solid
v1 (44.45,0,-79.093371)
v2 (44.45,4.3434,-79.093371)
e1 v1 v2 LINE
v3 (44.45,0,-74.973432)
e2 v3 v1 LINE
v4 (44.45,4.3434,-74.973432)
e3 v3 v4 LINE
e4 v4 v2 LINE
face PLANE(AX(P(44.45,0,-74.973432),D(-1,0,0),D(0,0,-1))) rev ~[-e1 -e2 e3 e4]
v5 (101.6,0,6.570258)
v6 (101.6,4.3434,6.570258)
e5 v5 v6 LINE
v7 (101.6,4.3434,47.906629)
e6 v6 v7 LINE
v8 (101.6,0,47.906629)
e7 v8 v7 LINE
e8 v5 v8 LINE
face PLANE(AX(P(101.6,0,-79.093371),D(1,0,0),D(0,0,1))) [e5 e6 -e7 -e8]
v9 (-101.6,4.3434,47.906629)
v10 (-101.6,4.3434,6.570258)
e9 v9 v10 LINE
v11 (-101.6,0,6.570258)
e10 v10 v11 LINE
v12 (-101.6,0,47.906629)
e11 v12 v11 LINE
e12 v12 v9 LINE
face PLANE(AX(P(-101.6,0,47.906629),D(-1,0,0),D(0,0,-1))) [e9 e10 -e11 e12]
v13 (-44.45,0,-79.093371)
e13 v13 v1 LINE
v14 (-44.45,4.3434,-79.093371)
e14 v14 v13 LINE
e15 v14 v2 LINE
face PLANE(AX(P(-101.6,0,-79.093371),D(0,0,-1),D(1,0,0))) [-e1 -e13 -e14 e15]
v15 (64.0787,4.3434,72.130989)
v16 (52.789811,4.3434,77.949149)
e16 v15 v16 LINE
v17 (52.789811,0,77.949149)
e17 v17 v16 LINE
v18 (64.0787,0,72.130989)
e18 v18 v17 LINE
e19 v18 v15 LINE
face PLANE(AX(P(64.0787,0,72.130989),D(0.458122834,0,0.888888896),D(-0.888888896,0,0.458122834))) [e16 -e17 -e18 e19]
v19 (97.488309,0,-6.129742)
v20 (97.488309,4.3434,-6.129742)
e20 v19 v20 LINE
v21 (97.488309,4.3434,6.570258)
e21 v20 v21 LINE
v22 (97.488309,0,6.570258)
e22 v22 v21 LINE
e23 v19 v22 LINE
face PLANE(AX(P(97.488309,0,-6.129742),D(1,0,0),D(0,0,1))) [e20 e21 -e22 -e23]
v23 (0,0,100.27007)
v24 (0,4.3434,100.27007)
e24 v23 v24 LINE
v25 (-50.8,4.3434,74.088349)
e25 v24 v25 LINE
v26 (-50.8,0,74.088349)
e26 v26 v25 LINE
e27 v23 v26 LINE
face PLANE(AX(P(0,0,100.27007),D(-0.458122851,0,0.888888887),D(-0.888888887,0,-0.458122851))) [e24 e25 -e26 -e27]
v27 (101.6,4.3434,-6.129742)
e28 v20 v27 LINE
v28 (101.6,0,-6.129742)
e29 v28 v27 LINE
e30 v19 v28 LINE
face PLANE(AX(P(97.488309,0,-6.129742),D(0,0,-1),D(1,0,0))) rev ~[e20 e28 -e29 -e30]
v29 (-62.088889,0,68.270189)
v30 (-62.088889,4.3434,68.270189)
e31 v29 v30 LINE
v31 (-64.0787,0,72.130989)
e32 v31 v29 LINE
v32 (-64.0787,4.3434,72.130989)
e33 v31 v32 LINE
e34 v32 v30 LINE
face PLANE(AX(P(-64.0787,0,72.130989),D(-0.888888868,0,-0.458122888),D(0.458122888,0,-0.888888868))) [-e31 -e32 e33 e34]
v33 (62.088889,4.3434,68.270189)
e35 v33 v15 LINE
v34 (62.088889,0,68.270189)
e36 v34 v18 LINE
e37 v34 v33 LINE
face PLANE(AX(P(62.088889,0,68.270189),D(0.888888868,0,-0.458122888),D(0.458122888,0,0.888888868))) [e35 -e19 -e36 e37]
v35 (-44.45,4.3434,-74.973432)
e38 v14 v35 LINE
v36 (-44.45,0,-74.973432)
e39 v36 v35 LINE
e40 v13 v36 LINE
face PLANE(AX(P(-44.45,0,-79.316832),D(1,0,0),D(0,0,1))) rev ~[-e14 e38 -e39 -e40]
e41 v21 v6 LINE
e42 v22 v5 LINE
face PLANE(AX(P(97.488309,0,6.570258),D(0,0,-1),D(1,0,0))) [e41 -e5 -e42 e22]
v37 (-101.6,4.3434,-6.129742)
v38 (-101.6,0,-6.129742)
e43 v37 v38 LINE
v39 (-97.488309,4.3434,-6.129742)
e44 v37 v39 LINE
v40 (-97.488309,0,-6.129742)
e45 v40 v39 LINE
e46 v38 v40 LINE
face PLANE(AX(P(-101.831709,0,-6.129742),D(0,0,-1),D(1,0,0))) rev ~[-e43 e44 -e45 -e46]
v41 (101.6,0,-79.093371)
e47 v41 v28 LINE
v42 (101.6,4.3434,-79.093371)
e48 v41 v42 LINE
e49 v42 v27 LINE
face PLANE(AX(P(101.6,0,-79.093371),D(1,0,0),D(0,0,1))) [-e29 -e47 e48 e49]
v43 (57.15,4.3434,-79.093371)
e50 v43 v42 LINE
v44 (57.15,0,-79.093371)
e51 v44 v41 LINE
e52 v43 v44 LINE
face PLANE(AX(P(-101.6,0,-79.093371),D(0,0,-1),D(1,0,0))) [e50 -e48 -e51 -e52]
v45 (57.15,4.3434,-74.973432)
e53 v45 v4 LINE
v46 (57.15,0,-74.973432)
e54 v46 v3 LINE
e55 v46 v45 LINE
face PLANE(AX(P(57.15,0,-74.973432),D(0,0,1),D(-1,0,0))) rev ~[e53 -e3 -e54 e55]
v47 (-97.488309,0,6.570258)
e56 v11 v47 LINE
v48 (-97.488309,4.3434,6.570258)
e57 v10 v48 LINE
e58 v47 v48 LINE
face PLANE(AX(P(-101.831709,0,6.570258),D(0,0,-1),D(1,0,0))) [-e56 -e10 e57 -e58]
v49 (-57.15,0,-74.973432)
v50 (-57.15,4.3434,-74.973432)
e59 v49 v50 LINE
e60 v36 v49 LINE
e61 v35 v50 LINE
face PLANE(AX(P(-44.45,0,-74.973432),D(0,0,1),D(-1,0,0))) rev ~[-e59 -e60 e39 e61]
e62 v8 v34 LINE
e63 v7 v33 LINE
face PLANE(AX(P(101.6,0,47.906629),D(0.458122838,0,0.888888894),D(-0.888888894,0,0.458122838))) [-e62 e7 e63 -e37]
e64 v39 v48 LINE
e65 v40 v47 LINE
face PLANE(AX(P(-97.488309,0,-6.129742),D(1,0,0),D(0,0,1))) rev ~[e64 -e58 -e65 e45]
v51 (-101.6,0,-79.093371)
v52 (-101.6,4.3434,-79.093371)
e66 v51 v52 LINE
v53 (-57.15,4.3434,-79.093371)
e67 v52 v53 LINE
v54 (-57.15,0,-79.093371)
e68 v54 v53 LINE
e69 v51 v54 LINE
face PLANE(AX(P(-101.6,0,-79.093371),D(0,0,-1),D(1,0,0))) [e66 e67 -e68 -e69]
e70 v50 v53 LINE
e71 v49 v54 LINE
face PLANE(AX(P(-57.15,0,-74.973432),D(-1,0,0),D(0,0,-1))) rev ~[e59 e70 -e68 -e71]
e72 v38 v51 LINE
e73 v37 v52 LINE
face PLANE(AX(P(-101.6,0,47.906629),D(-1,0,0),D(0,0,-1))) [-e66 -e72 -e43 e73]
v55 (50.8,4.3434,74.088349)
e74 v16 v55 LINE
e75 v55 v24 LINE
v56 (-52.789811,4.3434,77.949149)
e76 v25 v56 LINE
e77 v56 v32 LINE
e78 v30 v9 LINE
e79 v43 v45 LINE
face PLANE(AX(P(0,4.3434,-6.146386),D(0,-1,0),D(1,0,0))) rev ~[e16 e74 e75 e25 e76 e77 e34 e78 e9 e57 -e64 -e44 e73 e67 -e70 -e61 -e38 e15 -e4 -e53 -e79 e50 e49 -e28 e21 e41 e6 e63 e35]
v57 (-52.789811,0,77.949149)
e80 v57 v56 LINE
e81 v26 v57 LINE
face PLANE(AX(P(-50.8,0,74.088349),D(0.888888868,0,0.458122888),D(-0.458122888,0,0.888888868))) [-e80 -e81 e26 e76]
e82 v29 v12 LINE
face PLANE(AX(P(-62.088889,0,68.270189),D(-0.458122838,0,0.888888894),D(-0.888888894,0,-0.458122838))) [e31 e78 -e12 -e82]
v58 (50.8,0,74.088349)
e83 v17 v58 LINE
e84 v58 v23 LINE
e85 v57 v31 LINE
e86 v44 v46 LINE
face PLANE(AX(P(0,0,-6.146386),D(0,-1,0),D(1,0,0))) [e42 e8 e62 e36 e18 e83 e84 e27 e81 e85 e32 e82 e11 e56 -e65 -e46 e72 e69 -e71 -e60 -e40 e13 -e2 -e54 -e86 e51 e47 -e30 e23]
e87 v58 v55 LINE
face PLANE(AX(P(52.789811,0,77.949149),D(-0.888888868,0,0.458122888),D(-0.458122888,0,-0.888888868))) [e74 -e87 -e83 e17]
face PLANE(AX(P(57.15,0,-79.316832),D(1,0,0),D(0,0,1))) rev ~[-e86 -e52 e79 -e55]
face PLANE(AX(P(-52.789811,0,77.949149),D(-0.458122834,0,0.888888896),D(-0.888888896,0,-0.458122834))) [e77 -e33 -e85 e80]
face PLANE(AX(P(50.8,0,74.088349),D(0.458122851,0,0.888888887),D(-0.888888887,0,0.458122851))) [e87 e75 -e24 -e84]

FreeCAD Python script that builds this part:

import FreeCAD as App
import Part
import Sketcher

V = App.Vector
Q = App.Units.Quantity


def add_polygon(sketch, points):
    """Adds a closed chain of lines whose ends are joined by coincident constraints."""
    first, n = sketch.GeometryCount, len(points)
    for a, b in zip(points, points[1:] + points[:1]):
        sketch.addGeometry(Part.LineSegment(App.Vector(*a, 0), App.Vector(*b, 0)), False)
    for i in range(n):
        sketch.addConstraint(Sketcher.Constraint("Coincident", first + i, 2, first + (i + 1) % n, 1))

doc = App.newDocument("Part")
params = doc.addObject("Spreadsheet::Sheet", "Params")
for row, (alias, value) in enumerate([
    ("sketch1_width", "8 in"),
    ("sketch1_height", "5 in"),
    ("sketch1_length", "0.5 in"),
    ("sketch1_length2", "2.25 in"),
    ("sketch1_length3", "0.171 in"),
    ("pad1_length", "0.171 in"),
    ("sketch2_height", "0.5 in"),
    ("sketch2_width", "0.171 in"),
    ("sketch3_width", "0.5 in"),
    ("sketch3_height", "0.171 in"),
], start=1):
    params.set(f"A{row}", alias)
    params.set(f"B{row}", "=" + value)
    params.setAlias(f"B{row}", alias)

body = doc.addObject("PartDesign::Body", "Body")

# Sketch on XZ plane
sketch1 = doc.addObject("Sketcher::SketchObject", "Sketch")
body.addObject(sketch1)
sketch1.AttachmentSupport = (doc.XZ_Plane, [""])
sketch1.MapMode = "FlatFace"
add_polygon(sketch1, [(50.8, 74.1), (0, 100.3), (-50.8, 74.1), (-52.8, 77.9), (-64.1, 72.1), (-62.1, 68.3), (-101.6, 47.9), (-101.6, -79.1), (101.6, -79.1), (101.6, 47.9), (62.1, 68.3), (64.1, 72.1), (52.8, 77.9)])  # lines 0-12
sketch1.addConstraint(Sketcher.Constraint("Vertical", 6))
sketch1.addConstraint(Sketcher.Constraint("Horizontal", 7))
sketch1.addConstraint(Sketcher.Constraint("Vertical", 8))
sketch1.addConstraint(Sketcher.Constraint("Symmetric", 5, 2, 8, 2, -2))
sketch1.addConstraint(Sketcher.Constraint("Symmetric", 4, 2, 9, 2, -2))
sketch1.addConstraint(Sketcher.Constraint("Symmetric", 3, 2, 10, 2, -2))
sketch1.addConstraint(Sketcher.Constraint("Symmetric", 2, 2, 11, 2, -2))
sketch1.addConstraint(Sketcher.Constraint("Symmetric", 1, 2, 12, 2, -2))
sketch1.addConstraint(Sketcher.Constraint("PointOnObject", 0, 2, -2))
sketch1.addConstraint(Sketcher.Constraint("Perpendicular", 1, 2))
sketch1.addConstraint(Sketcher.Constraint("Perpendicular", 2, 3))
sketch1.addConstraint(Sketcher.Constraint("Perpendicular", 3, 4))
sketch1.addConstraint(Sketcher.Constraint("Perpendicular", 4, 5))
sketch1.addConstraint(Sketcher.Constraint("Equal", 2, 4))
sketch1.addConstraint(Sketcher.Constraint("DistanceX", 7, 1, 7, 2, Q("8 in")))
sketch1.addConstraint(Sketcher.Constraint("DistanceY", 6, 2, 6, 1, Q("5 in")))
sketch1.addConstraint(Sketcher.Constraint("DistanceX", 1, 2, -1, 1, Q("2 in")))
sketch1.addConstraint(Sketcher.Constraint("Distance", 3, Q("0.5 in")))
sketch1.addConstraint(Sketcher.Constraint("Distance", 0, Q("2.25 in")))
sketch1.addConstraint(Sketcher.Constraint("Distance", 2, Q("0.171 in")))
sketch1.addConstraint(Sketcher.Constraint("DistanceY", -1, 1, 0, 2, 100.27007))
sketch1.setExpression("Constraints[27]", "Params.sketch1_width")
sketch1.setExpression("Constraints[28]", "Params.sketch1_height")
sketch1.setExpression("Constraints[30]", "Params.sketch1_length")
sketch1.setExpression("Constraints[31]", "Params.sketch1_length2")
sketch1.setExpression("Constraints[32]", "Params.sketch1_length3")
pad1 = doc.addObject("PartDesign::Pad", "Pad")
body.addObject(pad1)
pad1.Profile = sketch1
pad1.setExpression("Length", "Params.pad1_length")
pad1.Reversed = True

# Sketch on XZ plane
sketch2 = doc.addObject("Sketcher::SketchObject", "Sketch001")
body.addObject(sketch2)
sketch2.AttachmentSupport = (doc.XZ_Plane, [""])
sketch2.MapMode = "FlatFace"
add_polygon(sketch2, [(-101.8, 6.6), (-101.8, -6.1), (-97.5, -6.1), (-97.5, 6.6)])  # lines 0-3
add_polygon(sketch2, [(97.5, 6.6), (97.5, -6.1), (101.8, -6.1), (101.8, 6.6)])  # lines 4-7
sketch2.addConstraint(Sketcher.Constraint("Vertical", 0))
sketch2.addConstraint(Sketcher.Constraint("Horizontal", 1))
sketch2.addConstraint(Sketcher.Constraint("Vertical", 2))
sketch2.addConstraint(Sketcher.Constraint("Horizontal", 3))
sketch2.addConstraint(Sketcher.Constraint("Vertical", 4))
sketch2.addConstraint(Sketcher.Constraint("Horizontal", 5))
sketch2.addConstraint(Sketcher.Constraint("Vertical", 6))
sketch2.addConstraint(Sketcher.Constraint("Horizontal", 7))
sketch2.addConstraint(Sketcher.Constraint("Symmetric", 1, 2, 4, 2, -2))
sketch2.addConstraint(Sketcher.Constraint("Symmetric", 3, 2, 6, 2, -2))
sketch2.addConstraint(Sketcher.Constraint("DistanceY", 0, 2, 0, 1, Q("0.5 in")))
sketch2.addConstraint(Sketcher.Constraint("DistanceX", 1, 1, 1, 2, Q("0.171 in")))
sketch2.addConstraint(Sketcher.Constraint("DistanceX", 0, 2, -1, 1, 101.831709))
sketch2.addConstraint(Sketcher.Constraint("DistanceY", 0, 2, -1, 1, 6.129742))
sketch2.setExpression("Constraints[18]", "Params.sketch2_height")
sketch2.setExpression("Constraints[19]", "Params.sketch2_width")
pocket1 = doc.addObject("PartDesign::Pocket", "Pocket")
body.addObject(pocket1)
pocket1.Profile = sketch2
pocket1.Type = "ThroughAll"

# Sketch on XZ plane
sketch3 = doc.addObject("Sketcher::SketchObject", "Sketch002")
body.addObject(sketch3)
sketch3.AttachmentSupport = (doc.XZ_Plane, [""])
sketch3.MapMode = "FlatFace"
add_polygon(sketch3, [(-57.1, -79.3), (-44.5, -79.3), (-44.5, -75), (-57.1, -75)])  # lines 0-3
add_polygon(sketch3, [(57.1, -79.3), (57.1, -75), (44.5, -75), (44.5, -79.3)])  # lines 4-7
sketch3.addConstraint(Sketcher.Constraint("Horizontal", 0))
sketch3.addConstraint(Sketcher.Constraint("Vertical", 1))
sketch3.addConstraint(Sketcher.Constraint("Horizontal", 2))
sketch3.addConstraint(Sketcher.Constraint("Vertical", 3))
sketch3.addConstraint(Sketcher.Constraint("Vertical", 4))
sketch3.addConstraint(Sketcher.Constraint("Horizontal", 5))
sketch3.addConstraint(Sketcher.Constraint("Vertical", 6))
sketch3.addConstraint(Sketcher.Constraint("Horizontal", 7))
sketch3.addConstraint(Sketcher.Constraint("Symmetric", 2, 2, 4, 2, -2))
sketch3.addConstraint(Sketcher.Constraint("Symmetric", 0, 2, 6, 2, -2))
sketch3.addConstraint(Sketcher.Constraint("DistanceX", 0, 1, 0, 2, Q("0.5 in")))
sketch3.addConstraint(Sketcher.Constraint("DistanceX", 1, 2, 4, 2, Q("4 in")))
sketch3.addConstraint(Sketcher.Constraint("DistanceY", 1, 1, 1, 2, Q("0.171 in")))
sketch3.addConstraint(Sketcher.Constraint("DistanceY", 0, 2, -1, 1, 79.316832))
sketch3.setExpression("Constraints[18]", "Params.sketch3_width")
sketch3.setExpression("Constraints[20]", "Params.sketch3_height")
pocket2 = doc.addObject("PartDesign::Pocket", "Pocket001")
body.addObject(pocket2)
pocket2.Profile = sketch3
pocket2.Type = "ThroughAll"

doc.recompute()
